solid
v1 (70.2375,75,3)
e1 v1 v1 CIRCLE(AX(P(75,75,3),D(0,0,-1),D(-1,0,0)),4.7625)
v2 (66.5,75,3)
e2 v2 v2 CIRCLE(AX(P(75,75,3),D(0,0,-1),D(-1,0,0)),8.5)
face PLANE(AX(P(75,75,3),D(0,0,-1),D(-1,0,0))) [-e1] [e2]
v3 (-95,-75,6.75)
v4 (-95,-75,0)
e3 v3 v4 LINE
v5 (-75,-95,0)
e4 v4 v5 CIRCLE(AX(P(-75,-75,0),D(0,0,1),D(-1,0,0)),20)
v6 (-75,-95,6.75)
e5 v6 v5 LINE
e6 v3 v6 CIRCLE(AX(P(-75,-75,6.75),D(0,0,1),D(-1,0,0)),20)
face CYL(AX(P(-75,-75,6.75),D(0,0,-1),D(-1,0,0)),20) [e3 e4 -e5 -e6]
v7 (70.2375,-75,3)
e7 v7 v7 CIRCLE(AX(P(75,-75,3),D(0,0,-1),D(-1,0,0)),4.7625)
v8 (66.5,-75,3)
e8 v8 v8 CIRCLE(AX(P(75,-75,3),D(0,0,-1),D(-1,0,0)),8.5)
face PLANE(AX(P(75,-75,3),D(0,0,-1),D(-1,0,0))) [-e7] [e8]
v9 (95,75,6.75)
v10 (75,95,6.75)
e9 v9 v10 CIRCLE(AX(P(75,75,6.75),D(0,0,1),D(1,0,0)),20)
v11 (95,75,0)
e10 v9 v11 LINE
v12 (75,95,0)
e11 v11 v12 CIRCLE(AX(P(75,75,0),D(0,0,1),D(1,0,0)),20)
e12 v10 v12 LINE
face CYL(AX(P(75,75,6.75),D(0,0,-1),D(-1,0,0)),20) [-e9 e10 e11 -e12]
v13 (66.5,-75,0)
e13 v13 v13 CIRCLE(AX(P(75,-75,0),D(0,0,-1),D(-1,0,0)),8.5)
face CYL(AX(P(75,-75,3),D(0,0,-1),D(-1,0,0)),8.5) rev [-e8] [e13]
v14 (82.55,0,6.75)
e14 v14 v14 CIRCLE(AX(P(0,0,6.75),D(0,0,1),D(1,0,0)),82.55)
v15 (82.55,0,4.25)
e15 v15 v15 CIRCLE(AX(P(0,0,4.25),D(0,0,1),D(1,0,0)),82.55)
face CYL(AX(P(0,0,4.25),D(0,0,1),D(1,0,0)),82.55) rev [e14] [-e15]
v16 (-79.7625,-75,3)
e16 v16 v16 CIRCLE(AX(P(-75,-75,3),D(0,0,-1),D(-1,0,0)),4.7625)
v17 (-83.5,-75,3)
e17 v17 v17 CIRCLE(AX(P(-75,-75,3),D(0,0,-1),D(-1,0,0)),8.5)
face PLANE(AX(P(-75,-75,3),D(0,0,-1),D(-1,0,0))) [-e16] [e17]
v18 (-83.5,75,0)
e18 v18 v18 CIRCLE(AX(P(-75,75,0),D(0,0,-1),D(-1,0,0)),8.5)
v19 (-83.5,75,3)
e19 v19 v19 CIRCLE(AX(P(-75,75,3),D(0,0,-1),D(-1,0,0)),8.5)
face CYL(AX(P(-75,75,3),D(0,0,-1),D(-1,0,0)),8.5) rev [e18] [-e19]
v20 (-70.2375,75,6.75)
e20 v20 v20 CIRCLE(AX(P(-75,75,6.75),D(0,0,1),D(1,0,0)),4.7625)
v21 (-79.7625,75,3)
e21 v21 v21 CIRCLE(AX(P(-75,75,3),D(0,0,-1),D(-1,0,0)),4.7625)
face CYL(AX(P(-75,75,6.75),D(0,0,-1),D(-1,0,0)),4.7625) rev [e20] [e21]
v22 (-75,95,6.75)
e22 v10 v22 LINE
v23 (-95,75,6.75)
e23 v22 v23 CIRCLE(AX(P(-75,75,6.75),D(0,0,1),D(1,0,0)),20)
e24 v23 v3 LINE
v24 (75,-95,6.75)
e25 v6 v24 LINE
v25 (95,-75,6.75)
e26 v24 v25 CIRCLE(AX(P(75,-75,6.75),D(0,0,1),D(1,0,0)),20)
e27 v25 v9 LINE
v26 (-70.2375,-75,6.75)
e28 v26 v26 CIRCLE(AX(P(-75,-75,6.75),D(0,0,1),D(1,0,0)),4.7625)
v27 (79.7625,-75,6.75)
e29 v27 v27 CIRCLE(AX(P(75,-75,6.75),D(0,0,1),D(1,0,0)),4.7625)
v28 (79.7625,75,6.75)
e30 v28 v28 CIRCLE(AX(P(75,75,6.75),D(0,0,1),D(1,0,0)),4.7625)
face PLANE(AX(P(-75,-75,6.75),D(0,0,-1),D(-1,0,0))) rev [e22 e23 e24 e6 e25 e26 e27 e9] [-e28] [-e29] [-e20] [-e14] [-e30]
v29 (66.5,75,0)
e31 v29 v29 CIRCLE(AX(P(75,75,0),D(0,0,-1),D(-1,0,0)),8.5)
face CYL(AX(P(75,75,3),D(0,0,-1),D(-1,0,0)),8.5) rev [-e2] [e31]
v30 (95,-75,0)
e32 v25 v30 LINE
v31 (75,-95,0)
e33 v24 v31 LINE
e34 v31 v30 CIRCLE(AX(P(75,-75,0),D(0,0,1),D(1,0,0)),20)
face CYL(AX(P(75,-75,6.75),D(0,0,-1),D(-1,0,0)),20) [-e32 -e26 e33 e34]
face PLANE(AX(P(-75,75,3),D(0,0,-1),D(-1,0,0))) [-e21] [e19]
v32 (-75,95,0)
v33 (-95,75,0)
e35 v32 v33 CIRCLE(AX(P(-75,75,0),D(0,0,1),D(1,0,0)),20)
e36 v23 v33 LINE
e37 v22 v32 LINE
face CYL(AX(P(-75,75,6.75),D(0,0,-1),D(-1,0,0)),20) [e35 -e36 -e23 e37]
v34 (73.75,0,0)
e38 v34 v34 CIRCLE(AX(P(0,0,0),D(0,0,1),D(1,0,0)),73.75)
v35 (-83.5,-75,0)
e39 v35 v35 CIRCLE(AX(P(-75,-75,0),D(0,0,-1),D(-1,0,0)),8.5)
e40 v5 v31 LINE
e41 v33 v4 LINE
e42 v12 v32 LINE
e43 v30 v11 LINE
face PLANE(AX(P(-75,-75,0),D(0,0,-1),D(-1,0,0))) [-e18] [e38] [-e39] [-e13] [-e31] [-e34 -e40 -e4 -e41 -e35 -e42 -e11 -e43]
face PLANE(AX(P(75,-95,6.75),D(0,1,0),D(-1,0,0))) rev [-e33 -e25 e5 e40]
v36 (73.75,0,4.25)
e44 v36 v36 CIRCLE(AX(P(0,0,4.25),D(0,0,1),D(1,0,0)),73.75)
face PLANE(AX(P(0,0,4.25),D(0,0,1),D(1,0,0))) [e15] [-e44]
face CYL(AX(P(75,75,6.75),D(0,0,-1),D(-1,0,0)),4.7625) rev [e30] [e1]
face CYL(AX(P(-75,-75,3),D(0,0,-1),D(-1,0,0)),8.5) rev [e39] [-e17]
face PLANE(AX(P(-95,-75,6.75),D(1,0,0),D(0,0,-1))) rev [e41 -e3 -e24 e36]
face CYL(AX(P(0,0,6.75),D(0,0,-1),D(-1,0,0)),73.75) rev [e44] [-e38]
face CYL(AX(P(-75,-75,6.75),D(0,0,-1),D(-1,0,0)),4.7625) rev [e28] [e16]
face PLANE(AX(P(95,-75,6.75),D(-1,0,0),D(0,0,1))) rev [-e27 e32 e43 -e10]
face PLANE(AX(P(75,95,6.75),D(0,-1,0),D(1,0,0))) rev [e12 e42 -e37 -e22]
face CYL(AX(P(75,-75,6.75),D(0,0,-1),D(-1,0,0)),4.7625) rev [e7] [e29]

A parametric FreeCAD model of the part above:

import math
import FreeCAD as App
import Part
import Sketcher

V = App.Vector

doc = App.newDocument("Part")
params = doc.addObject("Spreadsheet::Sheet", "Params")
for row, (alias, value) in enumerate([
    ("sketch1_radius", "20 mm"),
    ("sketch1_diameter", "147.5 mm"),
    ("sketch1_width", "150 mm"),
    ("pad1_length", "6.75 mm"),
    ("sketch2_diameter", "17 mm"),
    ("pocket1_length", "3 mm"),
    ("sketch3_diameter", "165.1 mm"),
    ("pocket2_length", "2.5 mm"),
], start=1):
    params.set(f"A{row}", alias)
    params.set(f"B{row}", "=" + value)
    params.setAlias(f"B{row}", alias)

body = doc.addObject("PartDesign::Body", "Body")

sketch1 = body.newObject("Sketcher::SketchObject", "Sketch")
sketch1.AttachmentSupport = (doc.getObject("XY_Plane"), [""])
sketch1.MapMode = "FlatFace"
sketch1.addGeometry(Part.LineSegment(V(-75, -95, 0), V(75, -95, 0)), False)
sketch1.addGeometry(Part.ArcOfCircle(Part.Circle(V(75, -75, 0), V(0, 0, 1), 20), math.radians(-90), math.radians(0)), False)
sketch1.addGeometry(Part.LineSegment(V(95, -75, 0), V(95, 75, 0)), False)
sketch1.addGeometry(Part.ArcOfCircle(Part.Circle(V(75, 75, 0), V(0, 0, 1), 20), math.radians(0), math.radians(90)), False)
sketch1.addGeometry(Part.LineSegment(V(75, 95, 0), V(-75, 95, 0)), False)
sketch1.addGeometry(Part.ArcOfCircle(Part.Circle(V(-75, 75, 0), V(0, 0, 1), 20), math.radians(90), math.radians(180)), False)
sketch1.addGeometry(Part.LineSegment(V(-95, 75, 0), V(-95, -75, 0)), False)
sketch1.addGeometry(Part.ArcOfCircle(Part.Circle(V(-75, -75, 0), V(0, 0, 1), 20), math.radians(180), math.radians(270)), False)
sketch1.addGeometry(Part.Circle(V(75, -75, 0), V(0, 0, 1), 4.7625), False)
sketch1.addGeometry(Part.Circle(V(-75, -75, 0), V(0, 0, 1), 4.7625), False)
sketch1.addGeometry(Part.Circle(V(75, 75, 0), V(0, 0, 1), 4.7625), False)
sketch1.addGeometry(Part.Circle(V(0, 0, 0), V(0, 0, 1), 73.75), False)
sketch1.addGeometry(Part.Circle(V(-75, 75, 0), V(0, 0, 1), 4.7625), False)
sketch1.addConstraint(Sketcher.Constraint("Tangent", 0, 2, 1, 1))
sketch1.addConstraint(Sketcher.Constraint("Tangent", 1, 2, 2, 1))
sketch1.addConstraint(Sketcher.Constraint("Tangent", 2, 2, 3, 1))
sketch1.addConstraint(Sketcher.Constraint("Tangent", 3, 2, 4, 1))
sketch1.addConstraint(Sketcher.Constraint("Tangent", 4, 2, 5, 1))
sketch1.addConstraint(Sketcher.Constraint("Tangent", 5, 2, 6, 1))
sketch1.addConstraint(Sketcher.Constraint("Tangent", 6, 2, 7, 1))
sketch1.addConstraint(Sketcher.Constraint("Tangent", 7, 2, 0, 1))
sketch1.addConstraint(Sketcher.Constraint("Horizontal", 0))
sketch1.addConstraint(Sketcher.Constraint("Vertical", 2))
sketch1.addConstraint(Sketcher.Constraint("Horizontal", 4))
sketch1.addConstraint(Sketcher.Constraint("Vertical", 6))
sketch1.addConstraint(Sketcher.Constraint("Coincident", 11, 3, -1, 1))
sketch1.addConstraint(Sketcher.Constraint("Coincident", 8, 3, 1, 3))
sketch1.addConstraint(Sketcher.Constraint("Coincident", 9, 3, 7, 3))
sketch1.addConstraint(Sketcher.Constraint("Coincident", 10, 3, 3, 3))
sketch1.addConstraint(Sketcher.Constraint("Coincident", 12, 3, 5, 3))
sketch1.addConstraint(Sketcher.Constraint("Equal", 1, 3))
sketch1.addConstraint(Sketcher.Constraint("Equal", 3, 5))
sketch1.addConstraint(Sketcher.Constraint("Equal", 5, 7))
sketch1.addConstraint(Sketcher.Constraint("Equal", 8, 9))
sketch1.addConstraint(Sketcher.Constraint("Equal", 9, 10))
sketch1.addConstraint(Sketcher.Constraint("Equal", 10, 12))
sketch1.addConstraint(Sketcher.Constraint("Symmetric", 1, 3, 5, 3, -1, 1))
sketch1.addConstraint(Sketcher.Constraint("Equal", 4, 2))
sketch1.addConstraint(Sketcher.Constraint("Radius", 1, 20.0))
sketch1.addConstraint(Sketcher.Constraint("Diameter", 11, 147.5))
sketch1.addConstraint(Sketcher.Constraint("DistanceX", 0, 1, 0, 2, 150.0))
sketch1.addConstraint(Sketcher.Constraint("Diameter", 8, 9.525))
sketch1.setExpression("Constraints[25]", "Params.sketch1_radius")
sketch1.setExpression("Constraints[26]", "Params.sketch1_diameter")
sketch1.setExpression("Constraints[27]", "Params.sketch1_width")
pad1 = body.newObject("PartDesign::Pad", "Pad")
pad1.Profile = sketch1
pad1.setExpression("Length", "Params.pad1_length")

sketch2 = body.newObject("Sketcher::SketchObject", "Sketch001")
sketch2.AttachmentSupport = (doc.getObject("XY_Plane"), [""])
sketch2.MapMode = "FlatFace"
sketch2.addGeometry(Part.Circle(V(75, 75, 0), V(0, 0, 1), 8.5), False)
sketch2.addGeometry(Part.Circle(V(-75, 75, 0), V(0, 0, 1), 8.5), False)
sketch2.addGeometry(Part.Circle(V(-75, -75, 0), V(0, 0, 1), 8.5), False)
sketch2.addGeometry(Part.Circle(V(75, -75, 0), V(0, 0, 1), 8.5), False)
sketch2.addConstraint(Sketcher.Constraint("Equal", 0, 1))
sketch2.addConstraint(Sketcher.Constraint("Equal", 1, 2))
sketch2.addConstraint(Sketcher.Constraint("Equal", 2, 3))
sketch2.addConstraint(Sketcher.Constraint("Symmetric", 0, 3, 2, 3, -1, 1))
sketch2.addConstraint(Sketcher.Constraint("Symmetric", 1, 3, 3, 3, -1, 1))
sketch2.addConstraint(Sketcher.Constraint("Symmetric", 0, 3, 1, 3, -2))
sketch2.addConstraint(Sketcher.Constraint("Diameter", 0, 17.0))
sketch2.addConstraint(Sketcher.Constraint("DistanceX", -1, 1, 0, 3, 75.0))
sketch2.addConstraint(Sketcher.Constraint("DistanceY", -1, 1, 0, 3, 75.0))
sketch2.setExpression("Constraints[6]", "Params.sketch2_diameter")
pocket1 = body.newObject("PartDesign::Pocket", "Pocket")
pocket1.Profile = sketch2
pocket1.setExpression("Length", "Params.pocket1_length")
pocket1.Reversed = True

sketch3 = body.newObject("Sketcher::SketchObject", "Sketch002")
sketch3.AttachmentSupport = (doc.getObject("XY_Plane"), [""])
sketch3.MapMode = "FlatFace"
sketch3.AttachmentOffset = App.Placement(V(0, 0, 6.75), App.Rotation())
sketch3.addGeometry(Part.Circle(V(0, 0, 0), V(0, 0, 1), 82.55), False)
sketch3.addConstraint(Sketcher.Constraint("Coincident", 0, 3, -1, 1))
sketch3.addConstraint(Sketcher.Constraint("Diameter", 0, 165.1))
sketch3.setExpression("Constraints[1]", "Params.sketch3_diameter")
pocket2 = body.newObject("PartDesign::Pocket", "Pocket001")
pocket2.Profile = sketch3
pocket2.setExpression("Length", "Params.pocket2_length")

doc.recompute()
